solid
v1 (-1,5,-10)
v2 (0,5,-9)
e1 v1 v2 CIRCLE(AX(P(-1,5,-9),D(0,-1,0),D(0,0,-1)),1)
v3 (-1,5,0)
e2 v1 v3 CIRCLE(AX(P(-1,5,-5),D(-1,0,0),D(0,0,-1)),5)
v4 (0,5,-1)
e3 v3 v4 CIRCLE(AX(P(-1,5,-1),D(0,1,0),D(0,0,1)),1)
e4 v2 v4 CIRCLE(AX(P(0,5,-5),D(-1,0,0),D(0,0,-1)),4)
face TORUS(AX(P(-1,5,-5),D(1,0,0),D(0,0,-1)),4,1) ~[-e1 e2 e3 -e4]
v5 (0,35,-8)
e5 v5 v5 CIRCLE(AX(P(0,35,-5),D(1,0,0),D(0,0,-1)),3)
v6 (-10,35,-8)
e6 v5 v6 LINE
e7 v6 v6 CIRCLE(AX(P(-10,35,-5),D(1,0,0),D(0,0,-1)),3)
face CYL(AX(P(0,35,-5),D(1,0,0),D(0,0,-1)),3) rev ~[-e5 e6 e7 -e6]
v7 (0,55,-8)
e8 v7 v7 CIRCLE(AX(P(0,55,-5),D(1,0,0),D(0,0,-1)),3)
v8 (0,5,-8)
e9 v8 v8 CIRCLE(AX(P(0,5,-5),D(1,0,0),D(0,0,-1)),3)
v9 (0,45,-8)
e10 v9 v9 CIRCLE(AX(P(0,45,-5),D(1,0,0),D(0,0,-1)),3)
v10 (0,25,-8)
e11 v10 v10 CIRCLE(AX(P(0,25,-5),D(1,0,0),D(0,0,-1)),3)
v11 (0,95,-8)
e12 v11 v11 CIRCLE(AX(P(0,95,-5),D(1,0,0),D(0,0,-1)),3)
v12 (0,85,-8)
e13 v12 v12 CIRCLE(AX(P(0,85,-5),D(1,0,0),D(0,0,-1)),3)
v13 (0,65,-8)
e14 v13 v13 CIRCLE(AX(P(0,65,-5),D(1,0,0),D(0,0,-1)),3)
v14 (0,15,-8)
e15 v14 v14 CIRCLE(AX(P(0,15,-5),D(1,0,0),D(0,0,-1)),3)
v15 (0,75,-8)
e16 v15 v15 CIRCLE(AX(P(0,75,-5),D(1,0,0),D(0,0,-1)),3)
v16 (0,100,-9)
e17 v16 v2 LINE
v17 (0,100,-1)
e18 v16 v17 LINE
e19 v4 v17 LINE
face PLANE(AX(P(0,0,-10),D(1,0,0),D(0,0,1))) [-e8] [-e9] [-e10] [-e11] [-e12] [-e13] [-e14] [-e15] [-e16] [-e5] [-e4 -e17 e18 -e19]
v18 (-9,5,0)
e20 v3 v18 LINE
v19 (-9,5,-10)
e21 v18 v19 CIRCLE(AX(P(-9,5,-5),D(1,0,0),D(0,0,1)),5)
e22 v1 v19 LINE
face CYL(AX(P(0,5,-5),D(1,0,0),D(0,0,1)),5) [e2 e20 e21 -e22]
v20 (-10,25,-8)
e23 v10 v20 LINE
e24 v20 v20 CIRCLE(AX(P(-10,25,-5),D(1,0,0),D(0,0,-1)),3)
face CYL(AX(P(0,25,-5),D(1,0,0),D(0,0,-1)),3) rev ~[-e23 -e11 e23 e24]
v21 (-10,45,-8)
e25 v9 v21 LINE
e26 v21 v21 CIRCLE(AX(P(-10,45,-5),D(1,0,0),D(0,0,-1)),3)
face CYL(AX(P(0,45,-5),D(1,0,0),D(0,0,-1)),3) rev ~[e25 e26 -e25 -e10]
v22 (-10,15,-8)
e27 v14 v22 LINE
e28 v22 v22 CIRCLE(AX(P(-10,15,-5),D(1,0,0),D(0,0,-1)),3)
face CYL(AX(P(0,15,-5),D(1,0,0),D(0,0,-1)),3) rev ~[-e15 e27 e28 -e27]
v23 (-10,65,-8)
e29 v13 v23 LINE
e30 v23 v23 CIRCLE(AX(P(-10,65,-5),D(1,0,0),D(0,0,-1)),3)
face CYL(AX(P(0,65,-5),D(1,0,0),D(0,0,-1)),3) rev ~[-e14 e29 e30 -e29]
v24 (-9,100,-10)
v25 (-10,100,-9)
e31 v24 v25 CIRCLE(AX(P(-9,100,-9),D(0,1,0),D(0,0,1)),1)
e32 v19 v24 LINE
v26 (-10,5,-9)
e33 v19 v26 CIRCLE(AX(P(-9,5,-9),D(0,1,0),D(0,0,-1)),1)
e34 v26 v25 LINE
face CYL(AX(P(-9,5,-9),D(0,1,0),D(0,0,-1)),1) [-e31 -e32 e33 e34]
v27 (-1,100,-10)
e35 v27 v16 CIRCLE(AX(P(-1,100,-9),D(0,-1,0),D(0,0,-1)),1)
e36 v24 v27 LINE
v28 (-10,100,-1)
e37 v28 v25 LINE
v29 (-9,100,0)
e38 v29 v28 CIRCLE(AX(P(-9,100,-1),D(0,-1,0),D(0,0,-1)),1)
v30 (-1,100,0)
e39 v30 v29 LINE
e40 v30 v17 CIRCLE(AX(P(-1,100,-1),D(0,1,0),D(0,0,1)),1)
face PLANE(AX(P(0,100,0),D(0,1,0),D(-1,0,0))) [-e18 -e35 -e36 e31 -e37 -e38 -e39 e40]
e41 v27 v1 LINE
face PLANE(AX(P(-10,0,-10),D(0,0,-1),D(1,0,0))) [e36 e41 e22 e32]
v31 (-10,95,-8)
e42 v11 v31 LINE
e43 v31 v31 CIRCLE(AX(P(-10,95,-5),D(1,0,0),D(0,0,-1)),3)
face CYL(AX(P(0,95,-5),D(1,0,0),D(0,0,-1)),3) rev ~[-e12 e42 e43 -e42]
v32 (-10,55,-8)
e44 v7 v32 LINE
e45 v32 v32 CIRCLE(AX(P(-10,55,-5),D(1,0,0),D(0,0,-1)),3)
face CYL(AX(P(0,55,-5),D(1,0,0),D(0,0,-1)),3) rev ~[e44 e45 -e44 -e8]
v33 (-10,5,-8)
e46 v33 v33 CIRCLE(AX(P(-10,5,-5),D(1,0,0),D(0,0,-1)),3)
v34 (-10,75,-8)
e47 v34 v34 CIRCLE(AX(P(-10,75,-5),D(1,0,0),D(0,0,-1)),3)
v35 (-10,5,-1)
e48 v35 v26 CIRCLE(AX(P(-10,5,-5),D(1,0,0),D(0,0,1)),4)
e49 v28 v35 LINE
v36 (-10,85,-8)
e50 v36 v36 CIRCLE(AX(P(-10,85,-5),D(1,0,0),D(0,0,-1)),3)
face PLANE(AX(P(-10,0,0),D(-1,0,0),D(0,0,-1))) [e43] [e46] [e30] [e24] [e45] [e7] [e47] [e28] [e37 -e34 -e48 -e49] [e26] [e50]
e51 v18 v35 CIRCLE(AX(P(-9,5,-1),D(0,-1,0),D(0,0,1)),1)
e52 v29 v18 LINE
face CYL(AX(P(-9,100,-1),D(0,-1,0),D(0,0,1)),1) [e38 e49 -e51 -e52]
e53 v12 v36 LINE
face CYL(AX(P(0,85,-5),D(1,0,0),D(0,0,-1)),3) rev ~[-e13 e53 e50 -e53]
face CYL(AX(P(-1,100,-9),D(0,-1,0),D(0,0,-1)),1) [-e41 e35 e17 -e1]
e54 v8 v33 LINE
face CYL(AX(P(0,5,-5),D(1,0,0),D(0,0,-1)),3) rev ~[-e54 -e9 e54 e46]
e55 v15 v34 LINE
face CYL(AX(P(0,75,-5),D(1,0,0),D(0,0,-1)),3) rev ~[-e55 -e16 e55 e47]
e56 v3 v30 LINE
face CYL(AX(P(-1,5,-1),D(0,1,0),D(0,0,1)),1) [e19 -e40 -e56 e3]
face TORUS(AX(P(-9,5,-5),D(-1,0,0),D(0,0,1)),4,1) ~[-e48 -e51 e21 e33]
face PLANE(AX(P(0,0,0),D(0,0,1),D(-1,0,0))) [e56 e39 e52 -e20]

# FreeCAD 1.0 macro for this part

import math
import FreeCAD as App
import Part
import Sketcher


def edges_at(feature, points):
    """Names of the edges that pass closest to the given points."""
    edges = feature.Shape.Edges
    near = lambda p: min(range(len(edges)), key=lambda i: edges[i].distToShape(Part.Vertex(*p))[0])
    return sorted({f"Edge{near(p) + 1}" for p in points})

doc = App.newDocument("Part")
params = doc.addObject("Spreadsheet::Sheet", "Params")
for row, (alias, value) in enumerate([
    ("sketch1_width", "10 mm"),
    ("pad1_length", "100 mm"),
    ("sketch2_diameter", "6 mm"),
    ("sketch2_radius", "5 mm"),
    ("fillet_radius", "1 mm"),
], start=1):
    params.set(f"A{row}", alias)
    params.set(f"B{row}", "=" + value)
    params.setAlias(f"B{row}", alias)

body = doc.addObject("PartDesign::Body", "Body")

# Sketch on XZ plane
sketch1 = body.newObject("Sketcher::SketchObject", "Sketch")
sketch1.AttachmentSupport = (doc.getObject("XZ_Plane"), [""])
sketch1.MapMode = "FlatFace"
sketch1.addGeometry([
    Part.LineSegment(App.Vector(-10, 0, 0), App.Vector(0, 0, 0)),
    Part.LineSegment(App.Vector(0, 0, 0), App.Vector(0, -10, 0)),
    Part.LineSegment(App.Vector(0, -10, 0), App.Vector(-10, -10, 0)),
    Part.LineSegment(App.Vector(-10, -10, 0), App.Vector(-10, 0, 0)),
], False)
sketch1.addConstraint([
    Sketcher.Constraint("Coincident", 0, 2, 1, 1),
    Sketcher.Constraint("Coincident", 1, 2, 2, 1),
    Sketcher.Constraint("Coincident", 2, 2, 3, 1),
    Sketcher.Constraint("Coincident", 3, 2, 0, 1),
    Sketcher.Constraint("Horizontal", 0),
    Sketcher.Constraint("Vertical", 1),
    Sketcher.Constraint("Horizontal", 2),
    Sketcher.Constraint("Vertical", 3),
    Sketcher.Constraint("Coincident", 0, 2, -1, 1),
    Sketcher.Constraint("Equal", 2, 1),
    Sketcher.Constraint("DistanceX", 0, 1, 0, 2, 10.0),
])
sketch1.setExpression("Constraints[10]", "Params.sketch1_width")
pad1 = body.newObject("PartDesign::Pad", "Pad")
pad1.Profile = sketch1
pad1.setExpression("Length", "Params.pad1_length")
pad1.Reversed = True

# Sketch on YZ plane
sketch2 = body.newObject("Sketcher::SketchObject", "Sketch001")
sketch2.AttachmentSupport = (doc.getObject("YZ_Plane"), [""])
sketch2.MapMode = "FlatFace"
sketch2.addGeometry([
    Part.Circle(App.Vector(95, -5, 0), App.Vector(0, 0, 1), 3),  # 0
    Part.LineSegment(App.Vector(0, -5, 0), App.Vector(0, -10, 0)),  # 1
    Part.LineSegment(App.Vector(0, -10, 0), App.Vector(5, -10, 0)),  # 2
    Part.ArcOfCircle(Part.Circle(App.Vector(5, -5, 0), App.Vector(0, 0, 1), 5), math.radians(180), math.radians(270)),  # 3
    Part.LineSegment(App.Vector(0, 0, 0), App.Vector(0, -5, 0)),  # 4
    Part.ArcOfCircle(Part.Circle(App.Vector(5, -5, 0), App.Vector(0, 0, 1), 5), math.radians(90), math.radians(180)),  # 5
    Part.LineSegment(App.Vector(5, 0, 0), App.Vector(0, 0, 0)),  # 6
    Part.Circle(App.Vector(85, -5, 0), App.Vector(0, 0, 1), 3),  # 7
    Part.Circle(App.Vector(75, -5, 0), App.Vector(0, 0, 1), 3),  # 8
    Part.Circle(App.Vector(65, -5, 0), App.Vector(0, 0, 1), 3),  # 9
    Part.Circle(App.Vector(55, -5, 0), App.Vector(0, 0, 1), 3),  # 10
    Part.Circle(App.Vector(45, -5, 0), App.Vector(0, 0, 1), 3),  # 11
    Part.Circle(App.Vector(35, -5, 0), App.Vector(0, 0, 1), 3),  # 12
    Part.Circle(App.Vector(25, -5, 0), App.Vector(0, 0, 1), 3),  # 13
    Part.Circle(App.Vector(15, -5, 0), App.Vector(0, 0, 1), 3),  # 14
    Part.Circle(App.Vector(5, -5, 0), App.Vector(0, 0, 1), 3),  # 15
], False)
sketch2.addConstraint([
    Sketcher.Constraint("Coincident", 1, 2, 2, 1),
    Sketcher.Constraint("Tangent", 2, 2, 3, 2),
    Sketcher.Constraint("Tangent", 3, 1, 1, 1),
    Sketcher.Constraint("Tangent", 4, 2, 5, 2),
    Sketcher.Constraint("Tangent", 5, 1, 6, 1),
    Sketcher.Constraint("Coincident", 6, 2, 4, 1),
    Sketcher.Constraint("Vertical", 1),
    Sketcher.Constraint("Horizontal", 2),
    Sketcher.Constraint("Vertical", 4),
    Sketcher.Constraint("Horizontal", 6),
    Sketcher.Constraint("Coincident", 6, 2, -1, 1),
    Sketcher.Constraint("Coincident", 5, 3, 3, 3),
    Sketcher.Constraint("Coincident", 15, 3, 3, 3),
    Sketcher.Constraint("Equal", 3, 5),
    Sketcher.Constraint("Equal", 0, 7),
    Sketcher.Constraint("Equal", 7, 8),
    Sketcher.Constraint("Equal", 8, 9),
    Sketcher.Constraint("Equal", 9, 10),
    Sketcher.Constraint("Equal", 10, 11),
    Sketcher.Constraint("Equal", 11, 12),
    Sketcher.Constraint("Equal", 12, 13),
    Sketcher.Constraint("Equal", 13, 14),
    Sketcher.Constraint("Equal", 14, 15),
    Sketcher.Constraint("Horizontal", 0, 3, 3, 3),
    Sketcher.Constraint("Horizontal", 5, 3, 7, 3),
    Sketcher.Constraint("Horizontal", 7, 3, 8, 3),
    Sketcher.Constraint("Horizontal", 8, 3, 9, 3),
    Sketcher.Constraint("Horizontal", 9, 3, 10, 3),
    Sketcher.Constraint("Horizontal", 10, 3, 11, 3),
    Sketcher.Constraint("Horizontal", 11, 3, 12, 3),
    Sketcher.Constraint("Horizontal", 12, 3, 13, 3),
    Sketcher.Constraint("Horizontal", 13, 3, 14, 3),
    Sketcher.Constraint("Diameter", 0, 6.0),
    Sketcher.Constraint("Radius", 3, 5.0),
    Sketcher.Constraint("DistanceX", 7, 3, 0, 3, 10.0),
    Sketcher.Constraint("DistanceX", 8, 3, 7, 3, 10.0),
    Sketcher.Constraint("DistanceX", 9, 3, 8, 3, 10.0),
    Sketcher.Constraint("DistanceX", 10, 3, 9, 3, 10.0),
    Sketcher.Constraint("DistanceX", 11, 3, 10, 3, 10.0),
    Sketcher.Constraint("DistanceX", 12, 3, 11, 3, 10.0),
    Sketcher.Constraint("DistanceX", 13, 3, 12, 3, 10.0),
    Sketcher.Constraint("DistanceX", 3, 3, 14, 3, 10.0),
    Sketcher.Constraint("DistanceX", 14, 3, 13, 3, 10.0),
])
sketch2.setExpression("Constraints[32]", "Params.sketch2_diameter")
sketch2.setExpression("Constraints[33]", "Params.sketch2_radius")
pocket1 = body.newObject("PartDesign::Pocket", "Pocket")
pocket1.Profile = sketch2
pocket1.Type = "ThroughAll"
doc.recompute()

fillet = body.newObject("PartDesign::Fillet", "Fillet")
fillet.Base = (pocket1, edges_at(pocket1, [
    (0, 0, -5),
    (0, 52.5, -10),
    (0, 52.5, 0),
    (-10, 0, -5),
    (-10, 52.5, -10),
    (-10, 52.5, 0),
]))
fillet.setExpression("Radius", "Params.fillet_radius")

doc.recompute()
